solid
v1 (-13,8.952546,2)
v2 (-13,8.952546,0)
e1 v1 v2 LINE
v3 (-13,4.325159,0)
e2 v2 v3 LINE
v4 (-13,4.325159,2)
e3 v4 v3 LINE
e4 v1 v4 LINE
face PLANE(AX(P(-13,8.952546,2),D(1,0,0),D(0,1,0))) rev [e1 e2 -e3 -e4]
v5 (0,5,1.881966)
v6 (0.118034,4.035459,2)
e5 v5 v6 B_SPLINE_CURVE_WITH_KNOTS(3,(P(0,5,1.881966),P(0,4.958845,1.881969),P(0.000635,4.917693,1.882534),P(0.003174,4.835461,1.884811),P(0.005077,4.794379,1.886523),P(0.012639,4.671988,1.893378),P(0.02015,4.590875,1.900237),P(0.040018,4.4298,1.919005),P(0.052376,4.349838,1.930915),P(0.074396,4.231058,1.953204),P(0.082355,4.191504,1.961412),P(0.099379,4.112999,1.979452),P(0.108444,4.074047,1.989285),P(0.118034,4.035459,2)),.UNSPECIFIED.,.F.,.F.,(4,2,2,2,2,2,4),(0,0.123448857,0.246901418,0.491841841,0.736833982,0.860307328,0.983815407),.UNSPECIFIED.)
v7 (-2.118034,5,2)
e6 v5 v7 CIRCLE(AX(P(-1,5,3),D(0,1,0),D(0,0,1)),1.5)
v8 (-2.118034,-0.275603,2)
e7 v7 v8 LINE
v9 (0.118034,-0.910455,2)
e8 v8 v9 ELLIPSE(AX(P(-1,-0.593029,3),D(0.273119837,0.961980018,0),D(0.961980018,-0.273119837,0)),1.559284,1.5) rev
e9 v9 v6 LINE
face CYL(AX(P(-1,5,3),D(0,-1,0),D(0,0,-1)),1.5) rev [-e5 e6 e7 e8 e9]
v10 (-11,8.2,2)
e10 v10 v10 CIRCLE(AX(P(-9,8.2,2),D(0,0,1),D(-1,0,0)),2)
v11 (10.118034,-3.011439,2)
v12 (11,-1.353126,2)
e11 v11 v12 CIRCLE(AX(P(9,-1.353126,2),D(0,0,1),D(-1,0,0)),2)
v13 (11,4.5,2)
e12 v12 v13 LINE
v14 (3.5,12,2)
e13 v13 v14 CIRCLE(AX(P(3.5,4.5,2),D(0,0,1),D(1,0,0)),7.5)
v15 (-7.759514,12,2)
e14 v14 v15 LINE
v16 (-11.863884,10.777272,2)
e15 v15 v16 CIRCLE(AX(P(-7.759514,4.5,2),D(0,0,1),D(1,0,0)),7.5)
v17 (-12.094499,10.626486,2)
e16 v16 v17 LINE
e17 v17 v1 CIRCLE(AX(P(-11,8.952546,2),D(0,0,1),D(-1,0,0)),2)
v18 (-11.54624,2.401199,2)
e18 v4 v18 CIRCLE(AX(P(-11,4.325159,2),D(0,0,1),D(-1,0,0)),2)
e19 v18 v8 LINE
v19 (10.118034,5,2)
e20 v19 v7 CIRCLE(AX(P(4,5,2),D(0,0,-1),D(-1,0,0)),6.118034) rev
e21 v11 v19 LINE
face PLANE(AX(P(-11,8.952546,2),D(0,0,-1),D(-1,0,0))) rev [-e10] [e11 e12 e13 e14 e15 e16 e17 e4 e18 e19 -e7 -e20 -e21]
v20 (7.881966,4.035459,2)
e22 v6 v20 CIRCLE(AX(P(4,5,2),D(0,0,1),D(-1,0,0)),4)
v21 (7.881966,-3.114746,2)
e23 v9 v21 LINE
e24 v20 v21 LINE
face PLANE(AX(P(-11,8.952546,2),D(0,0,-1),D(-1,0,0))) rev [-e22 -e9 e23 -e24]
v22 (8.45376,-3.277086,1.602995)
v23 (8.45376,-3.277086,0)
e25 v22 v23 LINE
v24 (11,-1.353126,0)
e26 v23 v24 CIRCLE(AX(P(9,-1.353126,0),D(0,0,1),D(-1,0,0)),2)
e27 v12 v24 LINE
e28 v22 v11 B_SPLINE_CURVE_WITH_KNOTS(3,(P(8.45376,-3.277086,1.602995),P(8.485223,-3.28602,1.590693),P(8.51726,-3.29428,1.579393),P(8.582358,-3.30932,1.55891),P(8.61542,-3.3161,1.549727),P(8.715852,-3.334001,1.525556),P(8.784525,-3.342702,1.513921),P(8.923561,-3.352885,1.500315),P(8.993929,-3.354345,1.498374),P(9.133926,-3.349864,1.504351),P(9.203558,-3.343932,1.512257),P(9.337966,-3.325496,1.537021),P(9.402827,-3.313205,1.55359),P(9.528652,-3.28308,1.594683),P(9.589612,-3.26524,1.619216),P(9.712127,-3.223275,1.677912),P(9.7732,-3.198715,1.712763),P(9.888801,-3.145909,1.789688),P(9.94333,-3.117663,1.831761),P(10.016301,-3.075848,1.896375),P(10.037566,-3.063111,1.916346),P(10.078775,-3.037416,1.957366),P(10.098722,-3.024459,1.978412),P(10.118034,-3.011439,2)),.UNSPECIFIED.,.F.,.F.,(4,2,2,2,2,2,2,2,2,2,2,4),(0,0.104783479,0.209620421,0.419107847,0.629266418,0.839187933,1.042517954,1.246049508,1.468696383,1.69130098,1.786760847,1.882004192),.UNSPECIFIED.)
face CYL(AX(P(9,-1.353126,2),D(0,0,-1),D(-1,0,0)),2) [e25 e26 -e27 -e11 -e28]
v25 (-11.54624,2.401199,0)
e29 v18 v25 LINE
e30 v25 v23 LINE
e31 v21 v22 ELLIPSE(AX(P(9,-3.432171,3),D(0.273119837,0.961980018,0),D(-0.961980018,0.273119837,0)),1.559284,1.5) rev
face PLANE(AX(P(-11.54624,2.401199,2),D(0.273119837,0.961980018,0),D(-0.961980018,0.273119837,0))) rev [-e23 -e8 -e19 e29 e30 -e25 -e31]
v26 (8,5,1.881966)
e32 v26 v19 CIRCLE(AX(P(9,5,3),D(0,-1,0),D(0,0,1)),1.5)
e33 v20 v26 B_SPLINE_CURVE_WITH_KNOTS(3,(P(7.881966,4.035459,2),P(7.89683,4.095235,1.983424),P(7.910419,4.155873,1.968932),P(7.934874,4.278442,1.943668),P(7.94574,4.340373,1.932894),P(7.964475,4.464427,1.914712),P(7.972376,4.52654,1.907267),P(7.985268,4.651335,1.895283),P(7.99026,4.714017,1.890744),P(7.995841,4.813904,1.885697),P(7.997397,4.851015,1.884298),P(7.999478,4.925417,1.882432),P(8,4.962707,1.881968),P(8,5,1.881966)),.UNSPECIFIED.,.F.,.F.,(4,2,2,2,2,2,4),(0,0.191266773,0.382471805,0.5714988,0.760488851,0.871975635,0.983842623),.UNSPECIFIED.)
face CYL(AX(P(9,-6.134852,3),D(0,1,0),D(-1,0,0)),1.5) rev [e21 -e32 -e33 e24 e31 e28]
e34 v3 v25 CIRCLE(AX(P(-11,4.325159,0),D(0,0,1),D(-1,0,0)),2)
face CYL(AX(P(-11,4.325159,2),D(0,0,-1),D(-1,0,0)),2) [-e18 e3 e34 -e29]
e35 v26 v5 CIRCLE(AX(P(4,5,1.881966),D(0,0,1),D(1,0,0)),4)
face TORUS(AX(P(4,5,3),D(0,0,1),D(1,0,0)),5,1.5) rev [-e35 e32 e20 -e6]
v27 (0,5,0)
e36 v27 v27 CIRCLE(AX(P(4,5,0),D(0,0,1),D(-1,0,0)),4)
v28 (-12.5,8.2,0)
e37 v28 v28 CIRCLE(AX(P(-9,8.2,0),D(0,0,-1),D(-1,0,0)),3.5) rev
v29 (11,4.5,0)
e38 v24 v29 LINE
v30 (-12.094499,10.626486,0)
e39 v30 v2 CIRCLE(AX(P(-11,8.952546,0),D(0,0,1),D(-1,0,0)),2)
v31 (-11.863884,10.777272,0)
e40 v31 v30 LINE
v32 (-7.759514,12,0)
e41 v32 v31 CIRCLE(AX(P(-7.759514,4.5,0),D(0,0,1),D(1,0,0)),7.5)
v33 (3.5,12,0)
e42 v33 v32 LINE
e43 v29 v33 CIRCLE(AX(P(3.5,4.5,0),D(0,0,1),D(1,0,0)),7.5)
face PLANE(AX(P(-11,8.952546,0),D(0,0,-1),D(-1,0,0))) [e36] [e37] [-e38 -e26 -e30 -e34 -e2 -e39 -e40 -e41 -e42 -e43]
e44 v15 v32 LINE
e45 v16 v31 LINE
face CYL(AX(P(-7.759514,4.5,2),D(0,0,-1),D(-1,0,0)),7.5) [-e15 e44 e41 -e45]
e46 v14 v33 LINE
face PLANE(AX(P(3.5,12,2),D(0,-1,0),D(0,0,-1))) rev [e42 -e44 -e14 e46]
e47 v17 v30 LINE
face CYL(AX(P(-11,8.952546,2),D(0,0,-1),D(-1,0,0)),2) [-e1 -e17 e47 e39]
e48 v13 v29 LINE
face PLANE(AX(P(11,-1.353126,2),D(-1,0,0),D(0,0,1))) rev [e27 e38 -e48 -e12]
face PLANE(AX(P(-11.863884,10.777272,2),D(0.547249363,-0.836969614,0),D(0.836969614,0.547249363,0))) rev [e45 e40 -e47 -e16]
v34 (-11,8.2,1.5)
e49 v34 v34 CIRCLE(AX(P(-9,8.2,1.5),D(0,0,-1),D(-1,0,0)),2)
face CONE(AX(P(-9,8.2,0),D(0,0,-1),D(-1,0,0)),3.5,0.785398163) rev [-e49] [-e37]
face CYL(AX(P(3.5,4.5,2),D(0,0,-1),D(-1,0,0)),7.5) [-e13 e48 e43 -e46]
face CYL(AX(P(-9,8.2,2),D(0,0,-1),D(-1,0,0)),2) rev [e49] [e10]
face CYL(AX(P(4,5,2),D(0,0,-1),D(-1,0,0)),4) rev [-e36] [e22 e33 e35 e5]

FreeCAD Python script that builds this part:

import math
import FreeCAD as App
import Part
import Sketcher
Q = App.Units.Quantity


def edges_at(feature, points):
    """Names of the edges that pass closest to the given points."""
    edges = feature.Shape.Edges
    near = lambda p: min(range(len(edges)), key=lambda i: edges[i].distToShape(Part.Vertex(*p))[0])
    return sorted({f"Edge{near(p) + 1}" for p in points})

doc = App.newDocument("Part")
body = doc.addObject("PartDesign::Body", "Body")

sketch1 = doc.addObject("Sketcher::SketchObject", "Sketch")
body.addObject(sketch1)
sketch1.AttachmentSupport = (doc.XY_Plane, [""])
sketch1.MapMode = "FlatFace"
sketch1.addGeometry([
    Part.LineSegment(App.Vector(-13, 8.95, 0), App.Vector(-13, 4.33, 0)),
    Part.ArcOfCircle(Part.Circle(App.Vector(-11, 4.33, 0), App.Vector(0, 0, 1), 2), math.radians(-180), math.radians(-106)),
    Part.LineSegment(App.Vector(-11.55, 2.4, 0), App.Vector(8.45, -3.28, 0)),
    Part.ArcOfCircle(Part.Circle(App.Vector(9, -1.35, 0), App.Vector(0, 0, 1), 2), math.radians(-106), math.radians(0)),
    Part.LineSegment(App.Vector(11, -1.35, 0), App.Vector(11, 4.5, 0)),
    Part.ArcOfCircle(Part.Circle(App.Vector(3.5, 4.5, 0), App.Vector(0, 0, 1), 7.5), math.radians(0), math.radians(90)),
    Part.LineSegment(App.Vector(3.5, 12, 0), App.Vector(-7.76, 12, 0)),
    Part.ArcOfCircle(Part.Circle(App.Vector(-7.76, 4.5, 0), App.Vector(0, 0, 1), 7.5), math.radians(90), math.radians(123)),
    Part.LineSegment(App.Vector(-11.86, 10.78, 0), App.Vector(-12.09, 10.63, 0)),
    Part.ArcOfCircle(Part.Circle(App.Vector(-11, 8.95, 0), App.Vector(0, 0, 1), 2), math.radians(123), math.radians(180)),
    Part.Circle(App.Vector(4, 5, 0), App.Vector(0, 0, 1), 4),
    Part.Circle(App.Vector(-9, 8.2, 0), App.Vector(0, 0, 1), 2),
], False)
sketch1.addConstraint([
    Sketcher.Constraint("Tangent", 0, 2, 1, 1),
    Sketcher.Constraint("Tangent", 1, 2, 2, 1),
    Sketcher.Constraint("Tangent", 2, 2, 3, 1),
    Sketcher.Constraint("Tangent", 3, 2, 4, 1),
    Sketcher.Constraint("Tangent", 4, 2, 5, 1),
    Sketcher.Constraint("Tangent", 5, 2, 6, 1),
    Sketcher.Constraint("Tangent", 6, 2, 7, 1),
    Sketcher.Constraint("Tangent", 7, 2, 8, 1),
    Sketcher.Constraint("Tangent", 8, 2, 9, 1),
    Sketcher.Constraint("Tangent", 9, 2, 0, 1),
    Sketcher.Constraint("Vertical", 0),
    Sketcher.Constraint("Vertical", 4),
    Sketcher.Constraint("Horizontal", 6),
    Sketcher.Constraint("Equal", 1, 3),
    Sketcher.Constraint("Equal", 5, 7),
    Sketcher.Constraint("Equal", 3, 9),
    Sketcher.Constraint("Equal", 9, 11),
    Sketcher.Constraint("Diameter", 10, Q("8 mm")),
    Sketcher.Constraint("Diameter", 11, Q("4 mm")),
    Sketcher.Constraint("Radius", 5, Q("7.5 mm")),
    Sketcher.Constraint("DistanceX", 1, 3, -1, 1, Q("11 mm")),
    Sketcher.Constraint("DistanceX", -1, 1, 3, 3, Q("9 mm")),
    Sketcher.Constraint("DistanceX", -1, 1, 10, 3, Q("4 mm")),
    Sketcher.Constraint("DistanceY", -1, 1, 10, 3, Q("5 mm")),
    Sketcher.Constraint("DistanceX", 11, 3, -1, 1, Q("9 mm")),
    Sketcher.Constraint("DistanceY", -1, 1, 5, 2, Q("12 mm")),
    Sketcher.Constraint("DistanceY", -1, 1, 11, 3, Q("8.2 mm")),
    Sketcher.Constraint("Angle", 2, Q("-15.85 deg")),
    Sketcher.Constraint("DistanceY", -1, 1, 1, 2, Q("2.401199 mm")),
    Sketcher.Constraint("DistanceX", 8, 2, -1, 1, Q("12.094499 mm")),
    Sketcher.Constraint("DistanceX", 6, 2, 6, 1, Q("11.259514 mm")),
])
pad1 = doc.addObject("PartDesign::Pad", "Pad")
body.addObject(pad1)
pad1.Profile = sketch1
pad1.Length = 2

sketch2 = doc.addObject("Sketcher::SketchObject", "Sketch001")
body.addObject(sketch2)
sketch2.AttachmentSupport = (doc.XZ_Plane, [""])
sketch2.MapMode = "FlatFace"
sketch2.AttachmentOffset = App.Placement(App.Vector(0, 0, 3.013993), App.Rotation())
sketch2.addGeometry(Part.Circle(App.Vector(-1, 3, 0), App.Vector(0, 0, 1), 1.5), False)
sketch2.addConstraint([
    Sketcher.Constraint("Diameter", 0, Q("3 mm")),
    Sketcher.Constraint("DistanceX", 0, 3, -1, 1, Q("1 mm")),
    Sketcher.Constraint("DistanceY", -1, 1, 0, 3, Q("3 mm")),
])

sketch3 = doc.addObject("Sketcher::SketchObject", "Sketch002")
body.addObject(sketch3)
sketch3.AttachmentSupport = (doc.XY_Plane, [""])
sketch3.MapMode = "FlatFace"
sketch3.AttachmentOffset = App.Placement(App.Vector(0, 0, 3), App.Rotation())
sketch3.addGeometry([
    Part.LineSegment(App.Vector(-1, -3, 0), App.Vector(-1, 5, 0)),
    Part.ArcOfCircle(Part.Circle(App.Vector(4, 5, 0), App.Vector(0, 0, 1), 5), math.radians(0), math.radians(180)),
    Part.LineSegment(App.Vector(9, 5, 0), App.Vector(9, -6, 0)),
], False)
sketch3.addConstraint([
    Sketcher.Constraint("Tangent", 0, 2, 1, 2),
    Sketcher.Constraint("Tangent", 1, 1, 2, 1),
    Sketcher.Constraint("Vertical", 0),
    Sketcher.Constraint("Vertical", 2),
    Sketcher.Constraint("Radius", 1, Q("5 mm")),
    Sketcher.Constraint("DistanceX", -1, 1, 1, 3, Q("4 mm")),
    Sketcher.Constraint("DistanceY", -1, 1, 1, 3, Q("5 mm")),
    Sketcher.Constraint("DistanceY", 0, 1, 0, 2, Q("8.013993 mm")),
    Sketcher.Constraint("DistanceY", 2, 2, 2, 1, Q("11.134852 mm")),
])
doc.recompute()

subtractivepipe = doc.addObject("PartDesign::SubtractivePipe", "SubtractivePipe")
body.addObject(subtractivepipe)
subtractivepipe.Profile = sketch2
subtractivepipe.Spine = (sketch3, ["Edge1", "Edge2", "Edge3"])
doc.recompute()

chamfer = doc.addObject("PartDesign::Chamfer", "Chamfer")
body.addObject(chamfer)
chamfer.Base = (subtractivepipe, edges_at(subtractivepipe, [(-11, 8.2, 0)]))
chamfer.Size = 1.5

doc.recompute()
